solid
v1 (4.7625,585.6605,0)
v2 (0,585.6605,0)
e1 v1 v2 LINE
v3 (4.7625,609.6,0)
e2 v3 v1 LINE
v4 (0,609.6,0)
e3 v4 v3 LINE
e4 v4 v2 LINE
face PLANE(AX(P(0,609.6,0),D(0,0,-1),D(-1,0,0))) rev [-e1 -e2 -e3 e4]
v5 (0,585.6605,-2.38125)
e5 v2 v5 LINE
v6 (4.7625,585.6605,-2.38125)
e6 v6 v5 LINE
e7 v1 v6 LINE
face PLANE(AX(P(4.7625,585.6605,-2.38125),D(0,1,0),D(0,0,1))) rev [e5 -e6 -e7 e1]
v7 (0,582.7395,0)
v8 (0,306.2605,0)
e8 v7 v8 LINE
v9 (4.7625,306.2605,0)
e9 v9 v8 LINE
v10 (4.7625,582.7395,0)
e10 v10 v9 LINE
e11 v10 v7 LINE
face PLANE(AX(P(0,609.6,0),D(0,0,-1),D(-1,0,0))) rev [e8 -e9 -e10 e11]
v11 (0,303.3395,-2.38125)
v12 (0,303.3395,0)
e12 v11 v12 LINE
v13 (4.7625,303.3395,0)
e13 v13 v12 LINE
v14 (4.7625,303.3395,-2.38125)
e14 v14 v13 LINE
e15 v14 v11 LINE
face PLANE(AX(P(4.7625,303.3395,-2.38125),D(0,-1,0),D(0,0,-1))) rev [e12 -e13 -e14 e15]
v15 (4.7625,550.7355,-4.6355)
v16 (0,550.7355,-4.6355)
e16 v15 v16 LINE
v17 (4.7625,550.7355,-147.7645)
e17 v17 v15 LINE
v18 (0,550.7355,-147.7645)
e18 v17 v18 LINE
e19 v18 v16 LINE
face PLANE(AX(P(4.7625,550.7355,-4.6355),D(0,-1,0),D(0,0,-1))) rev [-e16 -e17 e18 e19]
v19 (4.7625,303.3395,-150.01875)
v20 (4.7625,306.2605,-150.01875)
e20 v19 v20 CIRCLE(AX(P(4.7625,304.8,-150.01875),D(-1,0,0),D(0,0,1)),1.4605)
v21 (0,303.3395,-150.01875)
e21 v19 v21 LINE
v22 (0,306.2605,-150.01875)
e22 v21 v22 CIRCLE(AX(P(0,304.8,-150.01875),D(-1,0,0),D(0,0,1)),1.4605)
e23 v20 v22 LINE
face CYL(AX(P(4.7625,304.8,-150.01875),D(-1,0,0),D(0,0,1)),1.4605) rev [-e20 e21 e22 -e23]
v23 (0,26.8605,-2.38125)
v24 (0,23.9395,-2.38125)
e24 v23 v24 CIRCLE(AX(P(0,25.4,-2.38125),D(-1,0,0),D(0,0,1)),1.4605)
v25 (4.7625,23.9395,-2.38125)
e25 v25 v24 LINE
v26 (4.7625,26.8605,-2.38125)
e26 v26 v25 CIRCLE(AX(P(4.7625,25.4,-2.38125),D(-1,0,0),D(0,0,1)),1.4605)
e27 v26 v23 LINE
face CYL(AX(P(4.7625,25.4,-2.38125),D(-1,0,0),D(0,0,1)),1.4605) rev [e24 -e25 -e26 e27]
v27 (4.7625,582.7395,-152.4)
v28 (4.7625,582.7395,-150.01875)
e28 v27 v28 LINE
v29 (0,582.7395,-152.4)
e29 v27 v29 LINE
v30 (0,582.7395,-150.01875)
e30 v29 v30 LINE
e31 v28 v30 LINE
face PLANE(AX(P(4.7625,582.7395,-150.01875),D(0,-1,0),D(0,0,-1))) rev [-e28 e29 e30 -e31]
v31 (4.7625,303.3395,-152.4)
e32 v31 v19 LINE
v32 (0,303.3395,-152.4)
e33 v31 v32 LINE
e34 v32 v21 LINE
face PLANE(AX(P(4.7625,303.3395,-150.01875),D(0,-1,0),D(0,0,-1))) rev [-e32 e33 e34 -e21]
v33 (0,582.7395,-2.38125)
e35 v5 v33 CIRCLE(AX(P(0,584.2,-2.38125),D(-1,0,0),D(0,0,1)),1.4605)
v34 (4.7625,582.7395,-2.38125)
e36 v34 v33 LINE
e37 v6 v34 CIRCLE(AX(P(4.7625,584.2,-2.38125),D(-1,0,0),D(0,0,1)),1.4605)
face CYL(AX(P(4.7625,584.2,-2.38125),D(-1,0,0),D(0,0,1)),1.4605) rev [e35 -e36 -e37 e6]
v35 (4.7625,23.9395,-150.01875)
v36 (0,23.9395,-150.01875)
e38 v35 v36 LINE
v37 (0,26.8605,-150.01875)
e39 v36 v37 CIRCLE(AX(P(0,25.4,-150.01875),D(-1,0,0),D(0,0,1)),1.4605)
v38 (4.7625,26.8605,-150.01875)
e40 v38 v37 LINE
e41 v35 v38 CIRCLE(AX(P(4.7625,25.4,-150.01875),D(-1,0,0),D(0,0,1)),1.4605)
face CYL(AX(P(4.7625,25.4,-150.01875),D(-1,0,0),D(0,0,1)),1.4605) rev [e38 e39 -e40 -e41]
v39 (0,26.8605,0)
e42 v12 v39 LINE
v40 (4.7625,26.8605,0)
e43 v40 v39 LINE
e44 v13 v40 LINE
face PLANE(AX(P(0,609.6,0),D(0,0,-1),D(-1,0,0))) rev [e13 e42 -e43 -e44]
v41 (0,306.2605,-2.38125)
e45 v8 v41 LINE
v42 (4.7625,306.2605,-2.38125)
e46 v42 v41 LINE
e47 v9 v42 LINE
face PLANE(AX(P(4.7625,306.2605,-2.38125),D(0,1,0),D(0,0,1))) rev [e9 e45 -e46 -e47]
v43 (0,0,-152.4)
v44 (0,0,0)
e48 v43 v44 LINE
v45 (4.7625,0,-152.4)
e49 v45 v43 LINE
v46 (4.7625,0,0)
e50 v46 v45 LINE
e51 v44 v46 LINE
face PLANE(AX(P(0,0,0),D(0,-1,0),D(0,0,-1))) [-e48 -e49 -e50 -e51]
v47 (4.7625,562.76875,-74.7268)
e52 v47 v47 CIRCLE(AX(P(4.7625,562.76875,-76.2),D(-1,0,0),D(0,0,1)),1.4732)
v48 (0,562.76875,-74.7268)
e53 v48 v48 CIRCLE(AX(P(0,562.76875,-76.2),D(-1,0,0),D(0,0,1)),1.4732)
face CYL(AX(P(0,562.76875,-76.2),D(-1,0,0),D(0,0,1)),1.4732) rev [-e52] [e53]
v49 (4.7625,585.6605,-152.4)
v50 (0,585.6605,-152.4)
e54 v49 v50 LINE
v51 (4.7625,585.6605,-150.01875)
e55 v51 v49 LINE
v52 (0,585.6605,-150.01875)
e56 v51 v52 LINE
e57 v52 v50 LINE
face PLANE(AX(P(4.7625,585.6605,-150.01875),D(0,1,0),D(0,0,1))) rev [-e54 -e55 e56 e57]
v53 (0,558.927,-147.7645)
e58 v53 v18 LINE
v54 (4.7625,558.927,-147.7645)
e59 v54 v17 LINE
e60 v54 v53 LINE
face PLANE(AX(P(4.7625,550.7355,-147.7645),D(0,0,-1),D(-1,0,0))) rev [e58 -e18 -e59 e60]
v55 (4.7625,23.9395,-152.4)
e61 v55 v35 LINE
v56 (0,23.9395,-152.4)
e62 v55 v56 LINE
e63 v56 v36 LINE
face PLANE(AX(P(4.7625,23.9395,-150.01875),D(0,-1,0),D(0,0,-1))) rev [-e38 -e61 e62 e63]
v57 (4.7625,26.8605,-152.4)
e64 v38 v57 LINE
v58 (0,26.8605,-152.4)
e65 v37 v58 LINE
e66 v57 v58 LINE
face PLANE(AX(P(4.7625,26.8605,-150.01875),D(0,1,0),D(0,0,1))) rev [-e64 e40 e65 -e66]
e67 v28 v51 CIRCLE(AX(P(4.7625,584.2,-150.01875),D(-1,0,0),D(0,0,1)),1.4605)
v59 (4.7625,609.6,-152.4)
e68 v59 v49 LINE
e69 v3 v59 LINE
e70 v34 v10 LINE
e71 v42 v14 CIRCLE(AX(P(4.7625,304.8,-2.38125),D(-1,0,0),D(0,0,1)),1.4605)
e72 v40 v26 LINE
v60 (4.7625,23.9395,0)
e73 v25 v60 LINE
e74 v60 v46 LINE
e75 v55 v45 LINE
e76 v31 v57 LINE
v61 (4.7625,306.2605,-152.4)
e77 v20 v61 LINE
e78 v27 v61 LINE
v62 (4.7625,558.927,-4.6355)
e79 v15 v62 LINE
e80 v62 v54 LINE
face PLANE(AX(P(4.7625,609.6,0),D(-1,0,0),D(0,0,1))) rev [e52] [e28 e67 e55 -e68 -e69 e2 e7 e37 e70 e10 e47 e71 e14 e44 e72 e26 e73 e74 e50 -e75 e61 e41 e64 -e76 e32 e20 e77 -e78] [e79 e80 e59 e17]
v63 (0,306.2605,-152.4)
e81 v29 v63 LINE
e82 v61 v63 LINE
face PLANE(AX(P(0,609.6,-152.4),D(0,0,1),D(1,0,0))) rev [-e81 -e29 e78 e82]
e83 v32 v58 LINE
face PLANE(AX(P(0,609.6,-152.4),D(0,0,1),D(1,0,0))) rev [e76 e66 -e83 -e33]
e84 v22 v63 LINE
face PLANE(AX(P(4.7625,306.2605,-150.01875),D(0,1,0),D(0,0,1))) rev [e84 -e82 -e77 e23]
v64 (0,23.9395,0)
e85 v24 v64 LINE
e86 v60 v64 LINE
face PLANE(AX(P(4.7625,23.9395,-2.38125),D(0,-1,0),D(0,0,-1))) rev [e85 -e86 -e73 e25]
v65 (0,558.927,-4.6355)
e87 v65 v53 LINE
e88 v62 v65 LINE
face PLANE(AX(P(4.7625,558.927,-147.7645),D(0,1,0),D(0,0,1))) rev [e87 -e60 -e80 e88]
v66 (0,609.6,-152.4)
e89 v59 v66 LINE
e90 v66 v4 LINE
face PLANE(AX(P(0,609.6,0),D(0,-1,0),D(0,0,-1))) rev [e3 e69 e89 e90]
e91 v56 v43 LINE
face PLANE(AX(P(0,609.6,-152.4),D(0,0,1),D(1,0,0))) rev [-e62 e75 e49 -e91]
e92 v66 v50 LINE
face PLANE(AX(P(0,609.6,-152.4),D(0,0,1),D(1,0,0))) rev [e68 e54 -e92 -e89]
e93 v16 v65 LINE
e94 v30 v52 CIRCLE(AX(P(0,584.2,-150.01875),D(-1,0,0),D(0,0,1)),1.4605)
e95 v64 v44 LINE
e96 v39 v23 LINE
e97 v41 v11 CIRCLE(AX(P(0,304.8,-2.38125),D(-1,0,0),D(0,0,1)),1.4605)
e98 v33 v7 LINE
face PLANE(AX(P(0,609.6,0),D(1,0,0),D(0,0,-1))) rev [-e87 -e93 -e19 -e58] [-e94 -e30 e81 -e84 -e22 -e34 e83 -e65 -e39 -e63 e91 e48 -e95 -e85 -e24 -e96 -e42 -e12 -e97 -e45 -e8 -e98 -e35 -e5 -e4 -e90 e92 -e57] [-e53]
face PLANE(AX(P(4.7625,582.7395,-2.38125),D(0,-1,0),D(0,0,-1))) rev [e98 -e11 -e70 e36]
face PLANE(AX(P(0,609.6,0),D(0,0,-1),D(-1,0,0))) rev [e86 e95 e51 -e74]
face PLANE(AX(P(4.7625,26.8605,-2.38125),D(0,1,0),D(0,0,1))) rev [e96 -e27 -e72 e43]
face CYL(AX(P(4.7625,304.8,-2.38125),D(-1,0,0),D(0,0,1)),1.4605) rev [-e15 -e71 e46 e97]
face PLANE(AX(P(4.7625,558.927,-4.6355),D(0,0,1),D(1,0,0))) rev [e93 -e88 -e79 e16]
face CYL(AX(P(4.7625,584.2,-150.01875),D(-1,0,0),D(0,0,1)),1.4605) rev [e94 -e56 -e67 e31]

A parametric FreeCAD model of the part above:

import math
import FreeCAD as App
import Part
import Sketcher
from FreeCAD import Vector
Q = App.Units.Quantity


def add_polygon(sketch, points):
    """Adds a closed chain of lines whose ends are joined by coincident constraints."""
    first, n = sketch.GeometryCount, len(points)
    for a, b in zip(points, points[1:] + points[:1]):
        sketch.addGeometry(Part.LineSegment(App.Vector(*a, 0), App.Vector(*b, 0)), False)
    for i in range(n):
        sketch.addConstraint(Sketcher.Constraint("Coincident", first + i, 2, first + (i + 1) % n, 1))

doc = App.newDocument("Part")
params = doc.addObject("Spreadsheet::Sheet", "Params")
for row, (alias, value) in enumerate([
    ("sketch1_height", "6 in"),
    ("sketch1_width", "0.1875 in"),
    ("pad1_length", "24 in"),
    ("sketch2_width", "0.3125 in"),
    ("sketch2_height", "5.625 in"),
    ("sketch3_height", "0.09375 in"),
    ("sketch4_diameter", "0.116 in"),
    ("hole_diameter", "0.116 in"),
    ("sketch5_width", "0.3125 in"),
    ("sketch5_height", "5.635 in"),
    ("sketch5_height2", "5.625 in"),
], start=1):
    params.set(f"A{row}", alias)
    params.set(f"B{row}", "=" + value)
    params.setAlias(f"B{row}", alias)

body = doc.addObject("PartDesign::Body", "Body")

# Sketch on XZ plane
sketch1 = body.newObject("Sketcher::SketchObject", "Sketch")
sketch1.AttachmentSupport = (doc.getObject("XZ_Plane"), [""])
sketch1.MapMode = "FlatFace"
add_polygon(sketch1, [(0, -152.4), (0, 0), (4.8, 0), (4.8, -152.4)])  # lines 0-3
sketch1.addConstraint(Sketcher.Constraint("Vertical", 0))
sketch1.addConstraint(Sketcher.Constraint("Horizontal", 1))
sketch1.addConstraint(Sketcher.Constraint("Vertical", 2))
sketch1.addConstraint(Sketcher.Constraint("Horizontal", 3))
sketch1.addConstraint(Sketcher.Constraint("Coincident", 0, 2, -1, 1))
sketch1.addConstraint(Sketcher.Constraint("DistanceY", 0, 1, 0, 2, Q("6 in")))
sketch1.addConstraint(Sketcher.Constraint("DistanceX", 1, 1, 1, 2, Q("0.1875 in")))
sketch1.setExpression("Constraints[9]", "Params.sketch1_height")
sketch1.setExpression("Constraints[10]", "Params.sketch1_width")
pad1 = body.newObject("PartDesign::Pad", "Pad")
pad1.Profile = sketch1
pad1.setExpression("Length", "Params.pad1_length")
pad1.Reversed = True

# Sketch on YZ plane
sketch2 = body.newObject("Sketcher::SketchObject", "Sketch001")
sketch2.AttachmentSupport = (doc.getObject("YZ_Plane"), [""])
sketch2.MapMode = "FlatFace"
sketch2.AttachmentOffset = App.Placement(Vector(0, 0, 0.1875 * 25.4), App.Rotation())
add_polygon(sketch2, [(559, -5), (551, -5), (551, -148), (559, -148)])  # lines 0-3
sketch2.addConstraint(Sketcher.Constraint("Horizontal", 0))
sketch2.addConstraint(Sketcher.Constraint("Vertical", 1))
sketch2.addConstraint(Sketcher.Constraint("Horizontal", 2))
sketch2.addConstraint(Sketcher.Constraint("Vertical", 3))
sketch2.addConstraint(Sketcher.Constraint("DistanceX", -1, 1, 2, 2, Q("22 in")))
sketch2.addConstraint(Sketcher.Constraint("DistanceX", 0, 2, 0, 1, Q("0.3125 in")))
sketch2.addConstraint(Sketcher.Constraint("DistanceY", 1, 2, 1, 1, Q("5.625 in")))
sketch2.addConstraint(Sketcher.Constraint("DistanceY", 0, 2, -1, 1, Q("0.1875 in")))
sketch2.setExpression("Constraints[9]", "Params.sketch2_width")
sketch2.setExpression("Constraints[10]", "Params.sketch2_height")
pocket1 = body.newObject("PartDesign::Pocket", "Pocket")
pocket1.Profile = sketch2
pocket1.Type = "ThroughAll"

# Sketch on YZ plane
sketch3 = body.newObject("Sketcher::SketchObject", "Sketch002")
sketch3.AttachmentSupport = (doc.getObject("YZ_Plane"), [""])
sketch3.MapMode = "FlatFace"
sketch3.addGeometry(Part.LineSegment(Vector(582.7, -2.4, 0), Vector(582.7, 0, 0)), False)
sketch3.addGeometry(Part.LineSegment(Vector(582.7, 0, 0), Vector(585.7, 0, 0)), False)
sketch3.addGeometry(Part.LineSegment(Vector(585.7, 0, 0), Vector(585.7, -2.4, 0)), False)
sketch3.addGeometry(Part.ArcOfCircle(Part.Circle(Vector(584.2, -2.4, 0), Vector(0, 0, 1), 1.5), math.radians(180), math.radians(360)), False)
sketch3.addGeometry(Part.LineSegment(Vector(585.7, -150, 0), Vector(585.7, -152.4, 0)), False)
sketch3.addGeometry(Part.LineSegment(Vector(585.7, -152.4, 0), Vector(582.7, -152.4, 0)), False)
sketch3.addGeometry(Part.LineSegment(Vector(582.7, -152.4, 0), Vector(582.7, -150, 0)), False)
sketch3.addGeometry(Part.ArcOfCircle(Part.Circle(Vector(584.2, -150, 0), Vector(0, 0, 1), 1.5), math.radians(0), math.radians(180)), False)
sketch3.addGeometry(Part.LineSegment(Vector(303.3, -152.4, 0), Vector(303.3, -150, 0)), False)
sketch3.addGeometry(Part.ArcOfCircle(Part.Circle(Vector(304.8, -150, 0), Vector(0, 0, 1), 1.5), math.radians(0), math.radians(180)), False)
sketch3.addGeometry(Part.LineSegment(Vector(306.3, -150, 0), Vector(306.3, -152.4, 0)), False)
sketch3.addGeometry(Part.LineSegment(Vector(306.3, -152.4, 0), Vector(303.3, -152.4, 0)), False)
sketch3.addGeometry(Part.LineSegment(Vector(303.3, -2.4, 0), Vector(303.3, 0, 0)), False)
sketch3.addGeometry(Part.LineSegment(Vector(303.3, 0, 0), Vector(306.3, 0, 0)), False)
sketch3.addGeometry(Part.LineSegment(Vector(306.3, 0, 0), Vector(306.3, -2.4, 0)), False)
sketch3.addGeometry(Part.ArcOfCircle(Part.Circle(Vector(304.8, -2.4, 0), Vector(0, 0, 1), 1.5), math.radians(180), math.radians(360)), False)
sketch3.addGeometry(Part.LineSegment(Vector(23.9, -2.4, 0), Vector(23.9, 0, 0)), False)
sketch3.addGeometry(Part.LineSegment(Vector(23.9, 0, 0), Vector(26.9, 0, 0)), False)
sketch3.addGeometry(Part.LineSegment(Vector(26.9, 0, 0), Vector(26.9, -2.4, 0)), False)
sketch3.addGeometry(Part.ArcOfCircle(Part.Circle(Vector(25.4, -2.4, 0), Vector(0, 0, 1), 1.5), math.radians(180), math.radians(360)), False)
sketch3.addGeometry(Part.LineSegment(Vector(23.9, -152.4, 0), Vector(23.9, -150, 0)), False)
sketch3.addGeometry(Part.ArcOfCircle(Part.Circle(Vector(25.4, -150, 0), Vector(0, 0, 1), 1.5), math.radians(0), math.radians(180)), False)
sketch3.addGeometry(Part.LineSegment(Vector(26.9, -150, 0), Vector(26.9, -152.4, 0)), False)
sketch3.addGeometry(Part.LineSegment(Vector(26.9, -152.4, 0), Vector(23.9, -152.4, 0)), False)
sketch3.addConstraint(Sketcher.Constraint("Coincident", 0, 2, 1, 1))
sketch3.addConstraint(Sketcher.Constraint("Coincident", 1, 2, 2, 1))
sketch3.addConstraint(Sketcher.Constraint("Tangent", 2, 2, 3, 2))
sketch3.addConstraint(Sketcher.Constraint("Tangent", 3, 1, 0, 1))
sketch3.addConstraint(Sketcher.Constraint("Coincident", 4, 2, 5, 1))
sketch3.addConstraint(Sketcher.Constraint("Coincident", 5, 2, 6, 1))
sketch3.addConstraint(Sketcher.Constraint("Tangent", 6, 2, 7, 2))
sketch3.addConstraint(Sketcher.Constraint("Tangent", 7, 1, 4, 1))
sketch3.addConstraint(Sketcher.Constraint("Tangent", 8, 2, 9, 2))
sketch3.addConstraint(Sketcher.Constraint("Tangent", 9, 1, 10, 1))
sketch3.addConstraint(Sketcher.Constraint("Coincident", 10, 2, 11, 1))
sketch3.addConstraint(Sketcher.Constraint("Coincident", 11, 2, 8, 1))
sketch3.addConstraint(Sketcher.Constraint("Coincident", 12, 2, 13, 1))
sketch3.addConstraint(Sketcher.Constraint("Coincident", 13, 2, 14, 1))
sketch3.addConstraint(Sketcher.Constraint("Tangent", 14, 2, 15, 2))
sketch3.addConstraint(Sketcher.Constraint("Tangent", 15, 1, 12, 1))
sketch3.addConstraint(Sketcher.Constraint("Coincident", 16, 2, 17, 1))
sketch3.addConstraint(Sketcher.Constraint("Coincident", 17, 2, 18, 1))
sketch3.addConstraint(Sketcher.Constraint("Tangent", 18, 2, 19, 2))
sketch3.addConstraint(Sketcher.Constraint("Tangent", 19, 1, 16, 1))
sketch3.addConstraint(Sketcher.Constraint("Tangent", 20, 2, 21, 2))
sketch3.addConstraint(Sketcher.Constraint("Tangent", 21, 1, 22, 1))
sketch3.addConstraint(Sketcher.Constraint("Coincident", 22, 2, 23, 1))
sketch3.addConstraint(Sketcher.Constraint("Coincident", 23, 2, 20, 1))
sketch3.addConstraint(Sketcher.Constraint("Vertical", 0))
sketch3.addConstraint(Sketcher.Constraint("Horizontal", 1))
sketch3.addConstraint(Sketcher.Constraint("Vertical", 2))
sketch3.addConstraint(Sketcher.Constraint("Vertical", 4))
sketch3.addConstraint(Sketcher.Constraint("Horizontal", 5))
sketch3.addConstraint(Sketcher.Constraint("Vertical", 6))
sketch3.addConstraint(Sketcher.Constraint("Vertical", 8))
sketch3.addConstraint(Sketcher.Constraint("Vertical", 10))
sketch3.addConstraint(Sketcher.Constraint("Horizontal", 11))
sketch3.addConstraint(Sketcher.Constraint("Vertical", 12))
sketch3.addConstraint(Sketcher.Constraint("Horizontal", 13))
sketch3.addConstraint(Sketcher.Constraint("Vertical", 14))
sketch3.addConstraint(Sketcher.Constraint("Vertical", 16))
sketch3.addConstraint(Sketcher.Constraint("Horizontal", 17))
sketch3.addConstraint(Sketcher.Constraint("Vertical", 18))
sketch3.addConstraint(Sketcher.Constraint("Vertical", 20))
sketch3.addConstraint(Sketcher.Constraint("Vertical", 22))
sketch3.addConstraint(Sketcher.Constraint("Horizontal", 23))
sketch3.addConstraint(Sketcher.Constraint("Equal", 3, 7))
sketch3.addConstraint(Sketcher.Constraint("Equal", 7, 9))
sketch3.addConstraint(Sketcher.Constraint("Equal", 9, 15))
sketch3.addConstraint(Sketcher.Constraint("Equal", 15, 19))
sketch3.addConstraint(Sketcher.Constraint("Equal", 19, 21))
sketch3.addConstraint(Sketcher.Constraint("PointOnObject", 0, 2, -1))
sketch3.addConstraint(Sketcher.Constraint("PointOnObject", 12, 2, -1))
sketch3.addConstraint(Sketcher.Constraint("PointOnObject", 16, 2, -1))
sketch3.addConstraint(Sketcher.Constraint("Horizontal", 7, 3, 9, 3))
sketch3.addConstraint(Sketcher.Constraint("Horizontal", 3, 3, 15, 3))
sketch3.addConstraint(Sketcher.Constraint("Horizontal", 15, 3, 19, 3))
sketch3.addConstraint(Sketcher.Constraint("Horizontal", 9, 3, 21, 3))
sketch3.addConstraint(Sketcher.Constraint("Horizontal", 5, 2, 10, 2))
sketch3.addConstraint(Sketcher.Constraint("Horizontal", 11, 2, 22, 2))
sketch3.addConstraint(Sketcher.Constraint("Vertical", 3, 3, 7, 3))
sketch3.addConstraint(Sketcher.Constraint("Vertical", 9, 3, 15, 3))
sketch3.addConstraint(Sketcher.Constraint("Vertical", 19, 3, 21, 3))
sketch3.addConstraint(Sketcher.Constraint("Equal", 2, 4))
sketch3.addConstraint(Sketcher.Constraint("DistanceX", -1, 1, 3, 3, Q("23 in")))
sketch3.addConstraint(Sketcher.Constraint("DistanceX", -1, 1, 9, 3, Q("12 in")))
sketch3.addConstraint(Sketcher.Constraint("DistanceX", -1, 1, 19, 3, Q("1 in")))
sketch3.addConstraint(Sketcher.Constraint("DistanceY", 4, 2, -1, 1, Q("6 in")))
sketch3.addConstraint(Sketcher.Constraint("Radius", 3, Q("0.0575 in")))
sketch3.addConstraint(Sketcher.Constraint("DistanceY", 0, 1, 0, 2, Q("0.09375 in")))
sketch3.setExpression("Constraints[65]", "Params.sketch3_height")
pocket2 = body.newObject("PartDesign::Pocket", "Pocket001")
pocket2.Profile = sketch3
pocket2.Type = "ThroughAll"
pocket2.Reversed = True

# Sketch on YZ plane
sketch4 = body.newObject("Sketcher::SketchObject", "Sketch003")
sketch4.AttachmentSupport = (doc.getObject("YZ_Plane"), [""])
sketch4.MapMode = "FlatFace"
sketch4.addGeometry(Part.Circle(Vector(562.8, -76.2, 0), Vector(0, 0, 1), 1.5), False)
sketch4.addConstraint(Sketcher.Constraint("Diameter", 0, Q("0.116 in")))
sketch4.addConstraint(Sketcher.Constraint("DistanceY", 0, 3, -1, 1, Q("3 in")))
sketch4.addConstraint(Sketcher.Constraint("DistanceX", -1, 1, 0, 3, Q("22.15625 in")))
sketch4.setExpression("Constraints[0]", "Params.sketch4_diameter")
doc.recompute()
hole = body.newObject("PartDesign::Hole", "Hole")
hole.Profile = sketch4
hole.ThreadType = "None"
hole.setExpression("Diameter", "Params.hole_diameter")
hole.DepthType = "ThroughAll"
hole.Reversed = True

# Sketch on YZ plane
sketch5 = body.newObject("Sketcher::SketchObject", "Sketch004")
sketch5.AttachmentSupport = (doc.getObject("YZ_Plane"), [""])
sketch5.MapMode = "FlatFace"
add_polygon(sketch5, [(559, -148), (551, -148), (551, -5), (559, -5)])  # lines 0-3
add_polygon(sketch5, [(551, -5), (551, -148), (559, -148), (559, -5)])  # lines 4-7
sketch5.addConstraint(Sketcher.Constraint("Horizontal", 0))
sketch5.addConstraint(Sketcher.Constraint("Vertical", 1))
sketch5.addConstraint(Sketcher.Constraint("Horizontal", 2))
sketch5.addConstraint(Sketcher.Constraint("Vertical", 3))
sketch5.addConstraint(Sketcher.Constraint("Vertical", 4))
sketch5.addConstraint(Sketcher.Constraint("Horizontal", 5))
sketch5.addConstraint(Sketcher.Constraint("Vertical", 6))
sketch5.addConstraint(Sketcher.Constraint("Horizontal", 7))
sketch5.addConstraint(Sketcher.Constraint("DistanceX", -1, 1, 5, 2, Q("22 in")))
sketch5.addConstraint(Sketcher.Constraint("DistanceX", 5, 1, 5, 2, Q("0.3125 in")))
sketch5.addConstraint(Sketcher.Constraint("DistanceY", 1, 1, 1, 2, Q("5.635 in")))
sketch5.addConstraint(Sketcher.Constraint("DistanceY", 4, 2, 4, 1, Q("5.625 in")))
sketch5.addConstraint(Sketcher.Constraint("DistanceY", 4, 2, 1, 2, Q("5.63 in")))
sketch5.addConstraint(Sketcher.Constraint("DistanceX", 0, 2, 0, 1, Q("0.3225 in")))
sketch5.addConstraint(Sketcher.Constraint("DistanceX", -1, 1, 2, 2, Q("22.005 in")))
sketch5.addConstraint(Sketcher.Constraint("DistanceY", 4, 2, -1, 1, Q("5.8125 in")))
sketch5.setExpression("Constraints[17]", "Params.sketch5_width")
sketch5.setExpression("Constraints[18]", "Params.sketch5_height")
sketch5.setExpression("Constraints[19]", "Params.sketch5_height2")
pocket3 = body.newObject("PartDesign::Pocket", "Pocket002")
pocket3.Profile = sketch5
pocket3.Type = "ThroughAll"
pocket3.Reversed = True

doc.recompute()
